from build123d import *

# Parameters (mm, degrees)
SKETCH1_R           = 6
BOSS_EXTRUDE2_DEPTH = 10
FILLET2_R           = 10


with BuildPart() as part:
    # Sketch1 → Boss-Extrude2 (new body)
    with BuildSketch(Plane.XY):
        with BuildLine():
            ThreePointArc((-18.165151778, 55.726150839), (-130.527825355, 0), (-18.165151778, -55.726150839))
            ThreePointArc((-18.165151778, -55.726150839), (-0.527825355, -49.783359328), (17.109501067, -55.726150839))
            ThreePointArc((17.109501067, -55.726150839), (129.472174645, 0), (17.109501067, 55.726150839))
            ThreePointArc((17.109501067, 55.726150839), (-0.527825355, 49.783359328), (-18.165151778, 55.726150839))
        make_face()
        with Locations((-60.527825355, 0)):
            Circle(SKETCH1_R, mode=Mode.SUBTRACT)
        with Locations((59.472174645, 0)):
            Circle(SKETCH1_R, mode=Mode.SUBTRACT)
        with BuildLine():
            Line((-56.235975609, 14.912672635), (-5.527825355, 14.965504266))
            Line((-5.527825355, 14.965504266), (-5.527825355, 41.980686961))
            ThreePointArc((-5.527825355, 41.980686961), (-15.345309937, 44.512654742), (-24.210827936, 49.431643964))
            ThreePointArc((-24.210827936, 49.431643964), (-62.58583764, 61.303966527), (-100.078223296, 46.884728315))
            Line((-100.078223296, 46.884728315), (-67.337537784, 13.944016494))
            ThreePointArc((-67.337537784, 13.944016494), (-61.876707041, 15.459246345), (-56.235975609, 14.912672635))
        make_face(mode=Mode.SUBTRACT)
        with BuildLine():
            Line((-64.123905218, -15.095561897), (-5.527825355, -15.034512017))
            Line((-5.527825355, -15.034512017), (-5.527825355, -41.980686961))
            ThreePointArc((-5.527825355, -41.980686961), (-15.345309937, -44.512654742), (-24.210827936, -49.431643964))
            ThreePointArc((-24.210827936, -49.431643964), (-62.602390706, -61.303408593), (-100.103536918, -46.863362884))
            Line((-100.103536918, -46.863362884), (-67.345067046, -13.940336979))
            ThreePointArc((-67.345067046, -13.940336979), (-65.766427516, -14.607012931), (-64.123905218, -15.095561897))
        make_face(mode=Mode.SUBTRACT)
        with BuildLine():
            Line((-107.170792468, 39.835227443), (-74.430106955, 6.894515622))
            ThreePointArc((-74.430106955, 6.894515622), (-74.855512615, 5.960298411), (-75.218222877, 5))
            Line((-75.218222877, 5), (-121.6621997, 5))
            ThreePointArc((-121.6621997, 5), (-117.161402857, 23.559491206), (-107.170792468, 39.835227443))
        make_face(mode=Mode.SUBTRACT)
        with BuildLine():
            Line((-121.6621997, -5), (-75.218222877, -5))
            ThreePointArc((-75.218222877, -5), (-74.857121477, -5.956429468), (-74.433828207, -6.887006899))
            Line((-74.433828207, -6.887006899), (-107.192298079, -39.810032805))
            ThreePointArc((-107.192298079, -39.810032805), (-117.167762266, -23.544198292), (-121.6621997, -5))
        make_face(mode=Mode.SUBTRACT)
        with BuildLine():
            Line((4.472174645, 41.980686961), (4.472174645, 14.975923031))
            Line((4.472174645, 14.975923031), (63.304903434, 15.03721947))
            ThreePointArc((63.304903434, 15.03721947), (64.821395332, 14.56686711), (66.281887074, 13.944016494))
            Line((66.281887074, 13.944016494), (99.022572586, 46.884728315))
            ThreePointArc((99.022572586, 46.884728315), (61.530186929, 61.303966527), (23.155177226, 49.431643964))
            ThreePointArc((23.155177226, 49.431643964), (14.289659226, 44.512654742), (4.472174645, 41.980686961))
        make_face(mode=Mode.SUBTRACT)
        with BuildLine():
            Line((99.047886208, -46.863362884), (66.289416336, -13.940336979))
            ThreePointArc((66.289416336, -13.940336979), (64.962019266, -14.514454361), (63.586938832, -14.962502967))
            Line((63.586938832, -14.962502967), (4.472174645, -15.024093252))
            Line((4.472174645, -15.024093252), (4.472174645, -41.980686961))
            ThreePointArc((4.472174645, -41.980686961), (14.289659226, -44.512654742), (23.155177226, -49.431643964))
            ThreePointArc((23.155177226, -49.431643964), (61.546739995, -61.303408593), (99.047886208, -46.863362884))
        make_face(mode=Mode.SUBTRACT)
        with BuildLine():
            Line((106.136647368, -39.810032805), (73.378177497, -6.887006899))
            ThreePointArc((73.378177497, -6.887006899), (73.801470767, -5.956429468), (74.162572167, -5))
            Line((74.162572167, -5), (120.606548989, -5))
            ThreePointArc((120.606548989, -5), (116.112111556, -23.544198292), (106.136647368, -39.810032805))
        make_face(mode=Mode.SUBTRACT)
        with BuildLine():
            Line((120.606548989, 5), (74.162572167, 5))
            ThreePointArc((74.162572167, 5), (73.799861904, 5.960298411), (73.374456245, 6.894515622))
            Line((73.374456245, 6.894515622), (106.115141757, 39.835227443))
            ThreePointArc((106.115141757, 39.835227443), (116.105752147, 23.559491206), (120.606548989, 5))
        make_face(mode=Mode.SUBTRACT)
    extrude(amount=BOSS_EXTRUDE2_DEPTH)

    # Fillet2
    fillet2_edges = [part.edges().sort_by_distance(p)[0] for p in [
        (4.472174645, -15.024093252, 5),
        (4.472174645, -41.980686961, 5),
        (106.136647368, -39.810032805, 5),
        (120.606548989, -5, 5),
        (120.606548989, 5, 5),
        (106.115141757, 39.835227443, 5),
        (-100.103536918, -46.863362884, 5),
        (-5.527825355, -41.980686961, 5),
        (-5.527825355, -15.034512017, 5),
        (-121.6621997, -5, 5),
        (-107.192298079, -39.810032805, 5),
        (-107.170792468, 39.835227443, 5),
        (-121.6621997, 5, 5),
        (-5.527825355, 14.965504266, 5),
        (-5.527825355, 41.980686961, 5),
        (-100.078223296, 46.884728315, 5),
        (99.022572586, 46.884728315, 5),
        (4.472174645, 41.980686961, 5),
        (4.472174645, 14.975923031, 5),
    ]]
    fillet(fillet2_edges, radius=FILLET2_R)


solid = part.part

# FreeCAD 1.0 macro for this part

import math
import FreeCAD as App
import Part
import Sketcher

V = App.Vector
Q = App.Units.Quantity


def edges_at(feature, points):
    """Names of the edges that pass closest to the given points."""
    edges = feature.Shape.Edges
    near = lambda p: min(range(len(edges)), key=lambda i: edges[i].distToShape(Part.Vertex(*p))[0])
    return sorted({f"Edge{near(p) + 1}" for p in points})

doc = App.newDocument("Part")
body = doc.addObject("PartDesign::Body", "Body")

sketch1 = body.newObject("Sketcher::SketchObject", "Sketch")
sketch1.AttachmentSupport = (doc.getObject("XY_Plane"), [""])
sketch1.MapMode = "FlatFace"
sketch1.addGeometry([
    Part.ArcOfCircle(Part.Circle(V(-60.5, 0, 0), V(0, 0, 1), 70), math.radians(53), math.radians(307)),
    Part.ArcOfCircle(Part.Circle(V(-0.5, -78.9, 0), V(0, 0, 1), 29.1), math.radians(53), math.radians(127)),
    Part.ArcOfCircle(Part.Circle(V(59.5, 0, 0), V(0, 0, 1), 70), math.radians(-127), math.radians(127)),
    Part.ArcOfCircle(Part.Circle(V(-0.5, 78.9, 0), V(0, 0, 1), 29.1), math.radians(-127), math.radians(-53)),
    Part.ArcOfCircle(Part.Circle(V(-60.5, 0, 0), V(0, 0, 1), 15.5), math.radians(-116.06), math.radians(-103.4)),
    Part.LineSegment(V(-64.1, -15.1, 0), V(-5.5, -15, 0)),
    Part.LineSegment(V(-5.5, -15, 0), V(-5.5, -42, 0)),
    Part.ArcOfCircle(Part.Circle(V(-0.5, -81.7, 0), V(0, 0, 1), 40), math.radians(97), math.radians(126)),
    Part.ArcOfCircle(Part.Circle(V(-60.5, 0, 0), V(0, 0, 1), 61.3), math.radians(-130), math.radians(-54)),
    Part.LineSegment(V(-100.1, -46.9, 0), V(-67.3, -13.9, 0)),
    Part.ArcOfCircle(Part.Circle(V(-60.5, 0, 0), V(0, 0, 1), 61.3), math.radians(-175), math.radians(-140)),
    Part.LineSegment(V(-121.7, -5, 0), V(-75.2, -5, 0)),
    Part.ArcOfCircle(Part.Circle(V(-60.5, 0, 0), V(0, 0, 1), 15.5), math.radians(-161.2), math.radians(-153.65)),
    Part.LineSegment(V(-74.4, -6.9, 0), V(-107.2, -39.8, 0)),
    Part.LineSegment(V(66.3, -13.9, 0), V(99, -46.9, 0)),
    Part.ArcOfCircle(Part.Circle(V(59.5, 0, 0), V(0, 0, 1), 61.3), math.radians(-126), math.radians(-50)),
    Part.ArcOfCircle(Part.Circle(V(-0.5, -81.7, 0), V(0, 0, 1), 40), math.radians(54), math.radians(83)),
    Part.LineSegment(V(4.5, -42, 0), V(4.5, -15, 0)),
    Part.LineSegment(V(4.5, -15, 0), V(63.6, -15, 0)),
    Part.ArcOfCircle(Part.Circle(V(59.5, 0, 0), V(0, 0, 1), 15.5), math.radians(-74.62), math.radians(-63.94)),
    Part.ArcOfCircle(Part.Circle(V(59.5, 0, 0), V(0, 0, 1), 61.3), math.radians(-40), math.radians(-5)),
    Part.LineSegment(V(106.1, -39.8, 0), V(73.4, -6.9, 0)),
    Part.ArcOfCircle(Part.Circle(V(59.5, 0, 0), V(0, 0, 1), 15.5), math.radians(-26.35), math.radians(-18.8)),
    Part.LineSegment(V(74.2, -5, 0), V(120.6, -5, 0)),
    Part.ArcOfCircle(Part.Circle(V(-60.5, 0, 0), V(0, 0, 1), 61.3), math.radians(140), math.radians(175)),
    Part.LineSegment(V(-107.2, 39.8, 0), V(-74.4, 6.9, 0)),
    Part.ArcOfCircle(Part.Circle(V(-60.5, 0, 0), V(0, 0, 1), 15.5), math.radians(153.62), math.radians(161.2)),
    Part.LineSegment(V(-75.2, 5, 0), V(-121.7, 5, 0)),
    Part.Circle(V(-60.5, 0, 0), V(0, 0, 1), 6),
    Part.LineSegment(V(-5.5, 15, 0), V(-56.2, 14.9, 0)),
    Part.ArcOfCircle(Part.Circle(V(-60.5, 0, 0), V(0, 0, 1), 15.5), math.radians(74), math.radians(116)),
    Part.LineSegment(V(-67.3, 13.9, 0), V(-100.1, 46.9, 0)),
    Part.ArcOfCircle(Part.Circle(V(-60.5, 0, 0), V(0, 0, 1), 61.3), math.radians(54), math.radians(130)),
    Part.ArcOfCircle(Part.Circle(V(-0.5, 81.7, 0), V(0, 0, 1), 40), math.radians(-126), math.radians(-97)),
    Part.LineSegment(V(-5.5, 42, 0), V(-5.5, 15, 0)),
    Part.Circle(V(59.5, 0, 0), V(0, 0, 1), 6),
    Part.ArcOfCircle(Part.Circle(V(59.5, 0, 0), V(0, 0, 1), 61.3), math.radians(5), math.radians(40)),
    Part.LineSegment(V(120.6, 5, 0), V(74.2, 5, 0)),
    Part.ArcOfCircle(Part.Circle(V(59.5, 0, 0), V(0, 0, 1), 15.5), math.radians(18.8), math.radians(26.38)),
    Part.LineSegment(V(73.4, 6.9, 0), V(106.1, 39.8, 0)),
    Part.LineSegment(V(4.5, 15, 0), V(4.5, 42, 0)),
    Part.ArcOfCircle(Part.Circle(V(-0.5, 81.7, 0), V(0, 0, 1), 40), math.radians(-83), math.radians(-54)),
    Part.ArcOfCircle(Part.Circle(V(59.5, 0, 0), V(0, 0, 1), 61.3), math.radians(50), math.radians(126)),
    Part.LineSegment(V(99, 46.9, 0), V(66.3, 13.9, 0)),
    Part.ArcOfCircle(Part.Circle(V(59.5, 0, 0), V(0, 0, 1), 15.5), math.radians(63.97), math.radians(75.7)),
    Part.LineSegment(V(63.3, 15, 0), V(4.5, 15, 0)),
], False)
sketch1.addConstraint([
    Sketcher.Constraint("Tangent", 0, 2, 1, 2),
    Sketcher.Constraint("Tangent", 1, 1, 2, 1),
    Sketcher.Constraint("Tangent", 2, 2, 3, 2),
    Sketcher.Constraint("Tangent", 3, 1, 0, 1),
    Sketcher.Constraint("Coincident", 4, 2, 5, 1),
    Sketcher.Constraint("Coincident", 5, 2, 6, 1),
    Sketcher.Constraint("Coincident", 6, 2, 7, 1),
    Sketcher.Constraint("Tangent", 7, 2, 8, 2),
    Sketcher.Constraint("Coincident", 8, 1, 9, 1),
    Sketcher.Constraint("Coincident", 9, 2, 4, 1),
    Sketcher.Constraint("Coincident", 10, 1, 11, 1),
    Sketcher.Constraint("Coincident", 11, 2, 12, 1),
    Sketcher.Constraint("Coincident", 12, 2, 13, 1),
    Sketcher.Constraint("Coincident", 13, 2, 10, 2),
    Sketcher.Constraint("Coincident", 14, 2, 15, 2),
    Sketcher.Constraint("Tangent", 15, 1, 16, 1),
    Sketcher.Constraint("Coincident", 16, 2, 17, 1),
    Sketcher.Constraint("Coincident", 17, 2, 18, 1),
    Sketcher.Constraint("Coincident", 18, 2, 19, 1),
    Sketcher.Constraint("Coincident", 19, 2, 14, 1),
    Sketcher.Constraint("Coincident", 20, 1, 21, 1),
    Sketcher.Constraint("Coincident", 21, 2, 22, 1),
    Sketcher.Constraint("Coincident", 22, 2, 23, 1),
    Sketcher.Constraint("Coincident", 23, 2, 20, 2),
    Sketcher.Constraint("Coincident", 24, 1, 25, 1),
    Sketcher.Constraint("Coincident", 25, 2, 26, 1),
    Sketcher.Constraint("Coincident", 26, 2, 27, 1),
    Sketcher.Constraint("Coincident", 27, 2, 24, 2),
    Sketcher.Constraint("Coincident", 29, 2, 30, 1),
    Sketcher.Constraint("Coincident", 30, 2, 31, 1),
    Sketcher.Constraint("Coincident", 31, 2, 32, 2),
    Sketcher.Constraint("Tangent", 32, 1, 33, 1),
    Sketcher.Constraint("Coincident", 33, 2, 34, 1),
    Sketcher.Constraint("Coincident", 34, 2, 29, 1),
    Sketcher.Constraint("Coincident", 36, 1, 37, 1),
    Sketcher.Constraint("Coincident", 37, 2, 38, 1),
    Sketcher.Constraint("Coincident", 38, 2, 39, 1),
    Sketcher.Constraint("Coincident", 39, 2, 36, 2),
    Sketcher.Constraint("Coincident", 40, 2, 41, 1),
    Sketcher.Constraint("Tangent", 41, 2, 42, 2),
    Sketcher.Constraint("Coincident", 42, 1, 43, 1),
    Sketcher.Constraint("Coincident", 43, 2, 44, 1),
    Sketcher.Constraint("Coincident", 44, 2, 45, 1),
    Sketcher.Constraint("Coincident", 45, 2, 40, 1),
    Sketcher.Constraint("Vertical", 6),
    Sketcher.Constraint("Horizontal", 11),
    Sketcher.Constraint("Vertical", 17),
    Sketcher.Constraint("Horizontal", 23),
    Sketcher.Constraint("Horizontal", 27),
    Sketcher.Constraint("Vertical", 34),
    Sketcher.Constraint("Horizontal", 37),
    Sketcher.Constraint("Vertical", 40),
    Sketcher.Constraint("Coincident", 4, 3, 0, 3),
    Sketcher.Constraint("Coincident", 8, 3, 0, 3),
    Sketcher.Constraint("Coincident", 10, 3, 0, 3),
    Sketcher.Constraint("Coincident", 12, 3, 0, 3),
    Sketcher.Constraint("Coincident", 15, 3, 2, 3),
    Sketcher.Constraint("Coincident", 16, 3, 7, 3),
    Sketcher.Constraint("Coincident", 19, 3, 2, 3),
    Sketcher.Constraint("Coincident", 20, 3, 2, 3),
    Sketcher.Constraint("Coincident", 22, 3, 2, 3),
    Sketcher.Constraint("Coincident", 24, 3, 0, 3),
    Sketcher.Constraint("Coincident", 26, 3, 0, 3),
    Sketcher.Constraint("Coincident", 28, 3, 0, 3),
    Sketcher.Constraint("Coincident", 30, 3, 0, 3),
    Sketcher.Constraint("Coincident", 32, 3, 0, 3),
    Sketcher.Constraint("Coincident", 35, 3, 2, 3),
    Sketcher.Constraint("Coincident", 36, 3, 2, 3),
    Sketcher.Constraint("Coincident", 38, 3, 2, 3),
    Sketcher.Constraint("Coincident", 41, 3, 33, 3),
    Sketcher.Constraint("Coincident", 42, 3, 2, 3),
    Sketcher.Constraint("Coincident", 44, 3, 2, 3),
    Sketcher.Constraint("Equal", 0, 2),
    Sketcher.Constraint("Equal", 1, 3),
    Sketcher.Constraint("Equal", 8, 10),
    Sketcher.Constraint("Equal", 4, 12),
    Sketcher.Constraint("Equal", 10, 15),
    Sketcher.Constraint("Equal", 7, 16),
    Sketcher.Constraint("Equal", 12, 19),
    Sketcher.Constraint("Equal", 15, 20),
    Sketcher.Constraint("Equal", 19, 22),
    Sketcher.Constraint("Equal", 20, 24),
    Sketcher.Constraint("Equal", 22, 26),
    Sketcher.Constraint("Equal", 26, 30),
    Sketcher.Constraint("Equal", 24, 32),
    Sketcher.Constraint("Equal", 16, 33),
    Sketcher.Constraint("Equal", 28, 35),
    Sketcher.Constraint("Equal", 32, 36),
    Sketcher.Constraint("Equal", 30, 38),
    Sketcher.Constraint("Equal", 33, 41),
    Sketcher.Constraint("Equal", 36, 42),
    Sketcher.Constraint("Equal", 38, 44),
    Sketcher.Constraint("Symmetric", 1, 3, 3, 3, -1),
    Sketcher.Constraint("Parallel", 9, 13),
    Sketcher.Constraint("Parallel", 5, 18),
    Sketcher.Constraint("Parallel", 14, 21),
    Sketcher.Constraint("Parallel", 18, 29),
    Sketcher.Constraint("Parallel", 25, 31),
    Sketcher.Constraint("Parallel", 39, 43),
    Sketcher.Constraint("Parallel", 29, 45),
    Sketcher.Constraint("Horizontal", 8, 1, 14, 2),
    Sketcher.Constraint("Horizontal", 6, 2, 16, 2),
    Sketcher.Constraint("Horizontal", 9, 2, 19, 2),
    Sketcher.Constraint("Horizontal", 13, 2, 20, 1),
    Sketcher.Constraint("Horizontal", 11, 2, 22, 2),
    Sketcher.Constraint("Horizontal", 27, 2, 36, 1),
    Sketcher.Constraint("Horizontal", 25, 2, 38, 2),
    Sketcher.Constraint("Horizontal", 24, 1, 39, 2),
    Sketcher.Constraint("Horizontal", 33, 2, 40, 2),
    Sketcher.Constraint("Horizontal", 31, 2, 42, 1),
    Sketcher.Constraint("Vertical", 11, 2, 26, 2),
    Sketcher.Constraint("Vertical", 6, 2, 33, 2),
    Sketcher.Constraint("Equal", 9, 13),
    Sketcher.Constraint("Equal", 21, 25),
    Sketcher.Constraint("Equal", 25, 31),
    Sketcher.Constraint("Diameter", 28, Q("12 mm")),
    Sketcher.Constraint("Radius", 0, Q("70 mm")),
    Sketcher.Constraint("Radius", 7, Q("40 mm")),
    Sketcher.Constraint("DistanceY", 10, 1, -1, 1, Q("5 mm")),
    Sketcher.Constraint("Radius", 8, Q("61.338501 mm")),
    Sketcher.Constraint("Radius", 1, Q("29.143884 mm")),
    Sketcher.Constraint("Radius", 4, Q("15.517982 mm")),
    Sketcher.Constraint("DistanceX", -1, 1, 1, 1, Q("17.109501 mm")),
    Sketcher.Constraint("DistanceX", 10, 1, -1, 1, Q("121.6622 mm")),
    Sketcher.Constraint("DistanceX", 13, 2, -1, 1, Q("107.192298 mm")),
    Sketcher.Constraint("Distance", 5, Q("58.596112 mm")),
    Sketcher.Constraint("Distance", 45, Q("58.832761 mm")),
    Sketcher.Constraint("DistanceY", 6, 2, 6, 1, Q("26.946175 mm")),
    Sketcher.Constraint("DistanceY", 17, 1, 17, 2, Q("26.956594 mm")),
    Sketcher.Constraint("DistanceY", 34, 2, 34, 1, Q("27.015183 mm")),
    Sketcher.Constraint("DistanceY", 40, 1, 40, 2, Q("27.004764 mm")),
    Sketcher.Constraint("DistanceX", 12, 2, -1, 1, Q("74.433828 mm")),
    Sketcher.Constraint("DistanceY", -1, 1, 31, 2, Q("46.884728 mm")),
])
pad1 = body.newObject("PartDesign::Pad", "Pad")
pad1.Profile = sketch1
pad1.Length = 10
doc.recompute()

fillet = body.newObject("PartDesign::Fillet", "Fillet")
fillet.Base = (pad1, edges_at(pad1, [
    (4.472, -15.024, 5),
    (4.472, -41.981, 5),
    (106.137, -39.81, 5),
    (120.607, -5, 5),
    (120.607, 5, 5),
    (106.115, 39.835, 5),
    (-100.104, -46.863, 5),
    (-5.528, -41.981, 5),
    (-5.528, -15.035, 5),
    (-121.662, -5, 5),
    (-107.192, -39.81, 5),
    (-107.171, 39.835, 5),
    (-121.662, 5, 5),
    (-5.528, 14.966, 5),
    (-5.528, 41.981, 5),
    (-100.078, 46.885, 5),
    (99.023, 46.885, 5),
    (4.472, 41.981, 5),
    (4.472, 14.976, 5),
]))
fillet.Radius = 10

doc.recompute()
